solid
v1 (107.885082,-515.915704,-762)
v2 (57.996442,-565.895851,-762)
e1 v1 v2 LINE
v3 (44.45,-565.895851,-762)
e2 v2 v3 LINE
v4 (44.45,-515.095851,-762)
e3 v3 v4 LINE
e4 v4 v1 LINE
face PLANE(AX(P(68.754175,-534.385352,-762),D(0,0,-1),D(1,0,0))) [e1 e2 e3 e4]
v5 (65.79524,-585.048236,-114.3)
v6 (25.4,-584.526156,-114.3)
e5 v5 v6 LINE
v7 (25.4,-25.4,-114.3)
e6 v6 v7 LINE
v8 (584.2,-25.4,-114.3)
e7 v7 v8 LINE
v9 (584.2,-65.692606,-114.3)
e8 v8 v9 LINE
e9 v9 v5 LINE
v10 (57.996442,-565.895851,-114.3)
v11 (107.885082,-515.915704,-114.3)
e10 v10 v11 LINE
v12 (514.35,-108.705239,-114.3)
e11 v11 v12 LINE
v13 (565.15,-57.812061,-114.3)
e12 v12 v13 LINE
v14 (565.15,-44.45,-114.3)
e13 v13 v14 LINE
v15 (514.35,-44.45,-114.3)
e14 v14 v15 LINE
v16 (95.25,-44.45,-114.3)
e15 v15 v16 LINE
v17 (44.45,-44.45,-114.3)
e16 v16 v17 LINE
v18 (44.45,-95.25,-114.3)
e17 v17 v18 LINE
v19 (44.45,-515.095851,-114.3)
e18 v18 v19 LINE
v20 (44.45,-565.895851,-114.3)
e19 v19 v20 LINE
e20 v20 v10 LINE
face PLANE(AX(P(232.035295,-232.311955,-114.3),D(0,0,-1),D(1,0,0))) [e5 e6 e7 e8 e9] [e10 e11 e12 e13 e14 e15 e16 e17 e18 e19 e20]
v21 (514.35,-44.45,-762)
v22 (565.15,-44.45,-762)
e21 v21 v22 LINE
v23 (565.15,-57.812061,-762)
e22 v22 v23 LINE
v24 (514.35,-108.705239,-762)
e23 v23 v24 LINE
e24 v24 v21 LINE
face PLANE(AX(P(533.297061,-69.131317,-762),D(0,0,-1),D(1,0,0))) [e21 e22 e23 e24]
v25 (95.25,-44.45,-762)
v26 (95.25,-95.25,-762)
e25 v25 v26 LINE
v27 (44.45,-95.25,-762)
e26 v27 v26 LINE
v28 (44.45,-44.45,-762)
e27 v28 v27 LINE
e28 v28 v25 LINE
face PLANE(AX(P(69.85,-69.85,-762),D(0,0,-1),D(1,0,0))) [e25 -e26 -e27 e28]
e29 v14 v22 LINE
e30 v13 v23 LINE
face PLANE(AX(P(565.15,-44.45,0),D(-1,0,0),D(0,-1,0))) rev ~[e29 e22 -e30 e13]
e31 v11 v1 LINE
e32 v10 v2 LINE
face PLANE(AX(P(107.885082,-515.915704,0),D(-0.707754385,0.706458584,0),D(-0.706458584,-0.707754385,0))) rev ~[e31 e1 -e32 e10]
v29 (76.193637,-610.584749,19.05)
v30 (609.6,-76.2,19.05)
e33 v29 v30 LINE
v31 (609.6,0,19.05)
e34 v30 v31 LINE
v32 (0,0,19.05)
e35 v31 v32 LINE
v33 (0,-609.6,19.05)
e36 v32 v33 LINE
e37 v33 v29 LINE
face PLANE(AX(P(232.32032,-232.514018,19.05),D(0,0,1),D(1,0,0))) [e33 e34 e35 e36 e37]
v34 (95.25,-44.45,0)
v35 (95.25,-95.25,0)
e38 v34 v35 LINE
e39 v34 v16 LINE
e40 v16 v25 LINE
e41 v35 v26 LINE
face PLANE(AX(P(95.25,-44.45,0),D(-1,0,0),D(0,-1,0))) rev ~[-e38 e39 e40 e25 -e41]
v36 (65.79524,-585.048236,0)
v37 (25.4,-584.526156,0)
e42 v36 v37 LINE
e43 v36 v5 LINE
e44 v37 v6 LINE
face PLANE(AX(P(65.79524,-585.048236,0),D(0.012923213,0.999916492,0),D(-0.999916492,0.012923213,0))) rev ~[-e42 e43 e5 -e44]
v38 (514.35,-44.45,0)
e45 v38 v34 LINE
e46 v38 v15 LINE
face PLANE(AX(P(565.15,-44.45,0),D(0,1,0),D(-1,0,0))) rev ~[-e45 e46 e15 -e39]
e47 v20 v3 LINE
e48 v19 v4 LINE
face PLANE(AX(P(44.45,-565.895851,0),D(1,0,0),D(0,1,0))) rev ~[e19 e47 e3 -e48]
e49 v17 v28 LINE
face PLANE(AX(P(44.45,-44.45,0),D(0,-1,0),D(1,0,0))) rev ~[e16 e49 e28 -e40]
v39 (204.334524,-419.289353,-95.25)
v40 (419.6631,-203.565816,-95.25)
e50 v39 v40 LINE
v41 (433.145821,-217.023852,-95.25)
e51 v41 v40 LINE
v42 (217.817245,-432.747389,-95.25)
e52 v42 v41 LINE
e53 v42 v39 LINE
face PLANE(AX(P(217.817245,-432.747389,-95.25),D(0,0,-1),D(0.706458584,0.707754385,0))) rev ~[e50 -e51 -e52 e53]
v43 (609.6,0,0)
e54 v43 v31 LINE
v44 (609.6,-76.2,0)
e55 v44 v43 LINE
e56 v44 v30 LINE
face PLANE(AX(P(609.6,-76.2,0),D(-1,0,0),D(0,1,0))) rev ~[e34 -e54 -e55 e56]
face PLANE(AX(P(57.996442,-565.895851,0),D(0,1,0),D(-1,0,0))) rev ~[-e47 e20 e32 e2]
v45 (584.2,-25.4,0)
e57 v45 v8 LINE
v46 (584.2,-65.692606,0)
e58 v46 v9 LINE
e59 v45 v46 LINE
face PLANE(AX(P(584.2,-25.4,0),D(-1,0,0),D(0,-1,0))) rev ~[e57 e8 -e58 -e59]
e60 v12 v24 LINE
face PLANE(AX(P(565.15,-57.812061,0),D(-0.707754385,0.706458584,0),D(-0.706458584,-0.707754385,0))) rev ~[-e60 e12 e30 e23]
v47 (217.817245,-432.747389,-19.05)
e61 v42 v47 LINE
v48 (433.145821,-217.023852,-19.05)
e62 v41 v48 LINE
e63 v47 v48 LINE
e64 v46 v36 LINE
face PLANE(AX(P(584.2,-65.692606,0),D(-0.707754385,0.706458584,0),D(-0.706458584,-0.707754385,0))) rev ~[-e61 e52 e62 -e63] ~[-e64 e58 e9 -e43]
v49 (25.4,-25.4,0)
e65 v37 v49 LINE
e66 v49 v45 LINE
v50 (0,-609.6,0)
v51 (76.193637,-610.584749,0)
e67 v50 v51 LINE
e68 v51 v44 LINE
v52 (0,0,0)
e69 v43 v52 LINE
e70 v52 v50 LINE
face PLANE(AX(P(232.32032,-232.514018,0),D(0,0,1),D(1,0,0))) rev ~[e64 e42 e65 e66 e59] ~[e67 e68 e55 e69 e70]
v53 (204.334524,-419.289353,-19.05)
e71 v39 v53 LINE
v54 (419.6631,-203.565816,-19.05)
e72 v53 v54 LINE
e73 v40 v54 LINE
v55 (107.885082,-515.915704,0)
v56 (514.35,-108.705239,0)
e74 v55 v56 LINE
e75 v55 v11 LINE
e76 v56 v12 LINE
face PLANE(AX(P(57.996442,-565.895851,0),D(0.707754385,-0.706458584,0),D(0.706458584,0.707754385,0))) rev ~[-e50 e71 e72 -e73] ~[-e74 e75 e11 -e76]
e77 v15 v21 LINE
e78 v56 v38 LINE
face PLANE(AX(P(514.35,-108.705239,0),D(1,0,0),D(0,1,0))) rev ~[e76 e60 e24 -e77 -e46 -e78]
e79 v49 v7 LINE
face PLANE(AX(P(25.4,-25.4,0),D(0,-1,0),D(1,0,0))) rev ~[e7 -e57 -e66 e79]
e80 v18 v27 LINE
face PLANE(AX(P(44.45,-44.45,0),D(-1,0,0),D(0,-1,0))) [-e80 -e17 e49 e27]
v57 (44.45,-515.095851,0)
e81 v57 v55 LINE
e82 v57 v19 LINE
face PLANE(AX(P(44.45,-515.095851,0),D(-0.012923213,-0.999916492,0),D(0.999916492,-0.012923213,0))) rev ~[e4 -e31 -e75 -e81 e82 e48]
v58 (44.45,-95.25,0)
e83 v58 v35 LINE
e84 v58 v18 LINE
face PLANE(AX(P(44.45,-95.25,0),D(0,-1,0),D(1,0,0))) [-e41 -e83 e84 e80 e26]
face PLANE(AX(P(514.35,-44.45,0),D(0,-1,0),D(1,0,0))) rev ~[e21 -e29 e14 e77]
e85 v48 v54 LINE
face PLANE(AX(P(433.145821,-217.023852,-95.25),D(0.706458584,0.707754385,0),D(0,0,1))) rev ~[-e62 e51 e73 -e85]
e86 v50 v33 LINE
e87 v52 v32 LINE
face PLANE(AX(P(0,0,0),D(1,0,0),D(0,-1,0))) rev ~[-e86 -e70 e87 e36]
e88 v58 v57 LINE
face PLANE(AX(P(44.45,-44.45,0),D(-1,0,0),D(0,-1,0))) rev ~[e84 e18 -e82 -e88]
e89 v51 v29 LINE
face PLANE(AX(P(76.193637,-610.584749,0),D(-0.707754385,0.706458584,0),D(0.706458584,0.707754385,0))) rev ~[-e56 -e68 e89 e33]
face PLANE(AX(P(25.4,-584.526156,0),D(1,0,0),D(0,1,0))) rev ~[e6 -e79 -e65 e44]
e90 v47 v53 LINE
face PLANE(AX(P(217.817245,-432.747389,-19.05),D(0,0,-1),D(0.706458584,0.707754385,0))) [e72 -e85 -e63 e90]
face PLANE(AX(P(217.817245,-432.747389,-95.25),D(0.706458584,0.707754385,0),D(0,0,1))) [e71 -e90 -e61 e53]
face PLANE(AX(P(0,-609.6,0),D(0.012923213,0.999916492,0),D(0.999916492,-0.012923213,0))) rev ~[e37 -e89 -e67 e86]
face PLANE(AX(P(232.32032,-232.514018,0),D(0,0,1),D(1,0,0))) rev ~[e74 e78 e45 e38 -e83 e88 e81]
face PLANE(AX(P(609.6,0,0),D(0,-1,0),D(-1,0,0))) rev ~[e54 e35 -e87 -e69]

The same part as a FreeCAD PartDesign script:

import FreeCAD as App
import Part
import Sketcher
from FreeCAD import Vector
Q = App.Units.Quantity

doc = App.newDocument("Part")
body = doc.addObject("PartDesign::Body", "Body")

# Sketch on XY plane
sketch1 = doc.addObject("Sketcher::SketchObject", "Sketch")
body.addObject(sketch1)
sketch1.AttachmentSupport = (doc.XY_Plane, [""])
sketch1.MapMode = "FlatFace"
sketch1.addGeometry(Part.LineSegment(Vector(609.6, 0, 0), Vector(0, 0, 0)), False)
sketch1.addGeometry(Part.LineSegment(Vector(0, 0, 0), Vector(0, -609.6, 0)), False)
sketch1.addGeometry(Part.LineSegment(Vector(0, -609.6, 0), Vector(76.193637, -610.584749, 0)), False)
sketch1.addGeometry(Part.LineSegment(Vector(76.193637, -610.584749, 0), Vector(609.6, -76.2, 0)), False)
sketch1.addGeometry(Part.LineSegment(Vector(609.6, -76.2, 0), Vector(609.6, 0, 0)), False)
sketch1.addConstraint(Sketcher.Constraint("Coincident", 0, 2, 1, 1))
sketch1.addConstraint(Sketcher.Constraint("Coincident", 1, 2, 2, 1))
sketch1.addConstraint(Sketcher.Constraint("Coincident", 2, 2, 3, 1))
sketch1.addConstraint(Sketcher.Constraint("Coincident", 3, 2, 4, 1))
sketch1.addConstraint(Sketcher.Constraint("Coincident", 4, 2, 0, 1))
sketch1.addConstraint(Sketcher.Constraint("Horizontal", 0))
sketch1.addConstraint(Sketcher.Constraint("Vertical", 1))
sketch1.addConstraint(Sketcher.Constraint("Vertical", 4))
sketch1.addConstraint(Sketcher.Constraint("Coincident", 0, 2, -1, 1))
sketch1.addConstraint(Sketcher.Constraint("Equal", 0, 1))
sketch1.addConstraint(Sketcher.Constraint("DistanceX", 0, 2, 0, 1, Q("24 in")))
sketch1.addConstraint(Sketcher.Constraint("DistanceY", 4, 1, 4, 2, Q("3 in")))
sketch1.addConstraint(Sketcher.Constraint("Distance", 2, Q("3 in")))
sketch1.addConstraint(Sketcher.Constraint("DistanceY", 2, 2, -1, 1, Q("610.584749 mm")))
pad1 = doc.addObject("PartDesign::Pad", "Pad")
body.addObject(pad1)
pad1.Profile = sketch1
pad1.Length = Q("0.75 in")

# Sketch on XY plane
sketch2 = doc.addObject("Sketcher::SketchObject", "Sketch001")
body.addObject(sketch2)
sketch2.AttachmentSupport = (doc.XY_Plane, [""])
sketch2.MapMode = "FlatFace"
sketch2.addGeometry(Part.LineSegment(Vector(584.2, -65.692606, 0), Vector(65.79524, -585.048236, 0)), False)
sketch2.addGeometry(Part.LineSegment(Vector(65.79524, -585.048236, 0), Vector(25.4, -584.526156, 0)), False)
sketch2.addGeometry(Part.LineSegment(Vector(25.4, -584.526156, 0), Vector(25.4, -25.4, 0)), False)
sketch2.addGeometry(Part.LineSegment(Vector(25.4, -25.4, 0), Vector(584.2, -25.4, 0)), False)
sketch2.addGeometry(Part.LineSegment(Vector(584.2, -25.4, 0), Vector(584.2, -65.692606, 0)), False)
sketch2.addGeometry(Part.LineSegment(Vector(565.15, -44.45, 0), Vector(44.45, -44.45, 0)), False)
sketch2.addGeometry(Part.LineSegment(Vector(44.45, -44.45, 0), Vector(44.45, -565.720773, 0)), False)
sketch2.addGeometry(Part.LineSegment(Vector(44.45, -565.720773, 0), Vector(57.996442, -565.895851, 0)), False)
sketch2.addGeometry(Part.LineSegment(Vector(57.996442, -565.895851, 0), Vector(565.15, -57.812061, 0)), False)
sketch2.addGeometry(Part.LineSegment(Vector(565.15, -57.812061, 0), Vector(565.15, -44.45, 0)), False)
sketch2.addConstraint(Sketcher.Constraint("Coincident", 0, 2, 1, 1))
sketch2.addConstraint(Sketcher.Constraint("Coincident", 1, 2, 2, 1))
sketch2.addConstraint(Sketcher.Constraint("Coincident", 2, 2, 3, 1))
sketch2.addConstraint(Sketcher.Constraint("Coincident", 3, 2, 4, 1))
sketch2.addConstraint(Sketcher.Constraint("Coincident", 4, 2, 0, 1))
sketch2.addConstraint(Sketcher.Constraint("Coincident", 5, 2, 6, 1))
sketch2.addConstraint(Sketcher.Constraint("Coincident", 6, 2, 7, 1))
sketch2.addConstraint(Sketcher.Constraint("Coincident", 7, 2, 8, 1))
sketch2.addConstraint(Sketcher.Constraint("Coincident", 8, 2, 9, 1))
sketch2.addConstraint(Sketcher.Constraint("Coincident", 9, 2, 5, 1))
sketch2.addConstraint(Sketcher.Constraint("Vertical", 2))
sketch2.addConstraint(Sketcher.Constraint("Horizontal", 3))
sketch2.addConstraint(Sketcher.Constraint("Vertical", 4))
sketch2.addConstraint(Sketcher.Constraint("Horizontal", 5))
sketch2.addConstraint(Sketcher.Constraint("Vertical", 6))
sketch2.addConstraint(Sketcher.Constraint("Vertical", 9))
sketch2.addConstraint(Sketcher.Constraint("Parallel", 1, 7))
sketch2.addConstraint(Sketcher.Constraint("Parallel", 0, 8))
sketch2.addConstraint(Sketcher.Constraint("DistanceX", 3, 1, 3, 2, Q("22 in")))
sketch2.addConstraint(Sketcher.Constraint("DistanceX", 5, 2, 5, 1, Q("20.5 in")))
sketch2.addConstraint(Sketcher.Constraint("DistanceX", -1, 1, 1, 2, Q("1 in")))
sketch2.addConstraint(Sketcher.Constraint("DistanceY", 2, 2, -1, 1, Q("1 in")))
sketch2.addConstraint(Sketcher.Constraint("DistanceX", -1, 1, 5, 2, Q("1.75 in")))
sketch2.addConstraint(Sketcher.Constraint("DistanceY", 5, 2, -1, 1, Q("1.75 in")))
sketch2.addConstraint(Sketcher.Constraint("DistanceY", 9, 1, 9, 2, Q("13.362061 mm")))
sketch2.addConstraint(Sketcher.Constraint("DistanceY", 2, 1, 2, 2, Q("559.126156 mm")))
sketch2.addConstraint(Sketcher.Constraint("DistanceY", 4, 2, 4, 1, Q("40.292606 mm")))
sketch2.addConstraint(Sketcher.Constraint("DistanceY", 6, 2, 6, 1, Q("521.270773 mm")))
sketch2.addConstraint(Sketcher.Constraint("DistanceX", -1, 1, 0, 2, Q("65.79524 mm")))
sketch2.addConstraint(Sketcher.Constraint("DistanceX", -1, 1, 7, 2, Q("57.996442 mm")))
pad2 = doc.addObject("PartDesign::Pad", "Pad001")
body.addObject(pad2)
pad2.Profile = sketch2
pad2.Length = Q("4.5 in")
pad2.Reversed = True

# Sketch on an angled plane
sketch3 = doc.addObject("Sketcher::SketchObject", "Sketch002")
body.addObject(sketch3)
sketch3.Placement = App.Placement(Vector(325.481533, -324.88562, 0), App.Rotation(Vector(0.706458584, 0.707754385, 0), Vector(0, 0, 1), Vector(0.707754385, -0.706458584, 0), "ZXY"))
sketch3.addGeometry(Part.LineSegment(Vector(-152.4, -19.05, 0), Vector(-152.4, -95.25, 0)), False)
sketch3.addGeometry(Part.LineSegment(Vector(-152.4, -95.25, 0), Vector(152.4, -95.25, 0)), False)
sketch3.addGeometry(Part.LineSegment(Vector(152.4, -95.25, 0), Vector(152.4, -19.05, 0)), False)
sketch3.addGeometry(Part.LineSegment(Vector(152.4, -19.05, 0), Vector(-152.4, -19.05, 0)), False)
sketch3.addConstraint(Sketcher.Constraint("Coincident", 0, 2, 1, 1))
sketch3.addConstraint(Sketcher.Constraint("Coincident", 1, 2, 2, 1))
sketch3.addConstraint(Sketcher.Constraint("Coincident", 2, 2, 3, 1))
sketch3.addConstraint(Sketcher.Constraint("Coincident", 3, 2, 0, 1))
sketch3.addConstraint(Sketcher.Constraint("Vertical", 0))
sketch3.addConstraint(Sketcher.Constraint("Horizontal", 1))
sketch3.addConstraint(Sketcher.Constraint("Vertical", 2))
sketch3.addConstraint(Sketcher.Constraint("Horizontal", 3))
sketch3.addConstraint(Sketcher.Constraint("DistanceX", 1, 1, 1, 2, Q("12 in")))
sketch3.addConstraint(Sketcher.Constraint("DistanceY", 0, 2, 0, 1, Q("3 in")))
sketch3.addConstraint(Sketcher.Constraint("DistanceX", 0, 2, -1, 1, Q("6 in")))
sketch3.addConstraint(Sketcher.Constraint("DistanceY", 0, 2, -1, 1, Q("3.75 in")))
pocket1 = doc.addObject("PartDesign::Pocket", "Pocket")
body.addObject(pocket1)
pocket1.Profile = sketch3
pocket1.Length = 205.103861

# Sketch on XY plane
sketch4 = doc.addObject("Sketcher::SketchObject", "Sketch003")
body.addObject(sketch4)
sketch4.AttachmentSupport = (doc.XY_Plane, [""])
sketch4.MapMode = "FlatFace"
sketch4.addGeometry(Part.LineSegment(Vector(57.996442, -565.895851, 0), Vector(44.45, -565.895851, 0)), False)
sketch4.addGeometry(Part.LineSegment(Vector(44.45, -565.895851, 0), Vector(44.45, -515.095851, 0)), False)
sketch4.addGeometry(Part.LineSegment(Vector(44.45, -515.095851, 0), Vector(107.885082, -515.915704, 0)), False)
sketch4.addGeometry(Part.LineSegment(Vector(107.885082, -515.915704, 0), Vector(57.996442, -565.895851, 0)), False)
sketch4.addConstraint(Sketcher.Constraint("Coincident", 0, 2, 1, 1))
sketch4.addConstraint(Sketcher.Constraint("Coincident", 1, 2, 2, 1))
sketch4.addConstraint(Sketcher.Constraint("Coincident", 2, 2, 3, 1))
sketch4.addConstraint(Sketcher.Constraint("Coincident", 3, 2, 0, 1))
sketch4.addConstraint(Sketcher.Constraint("Horizontal", 0))
sketch4.addConstraint(Sketcher.Constraint("Vertical", 1))
sketch4.addConstraint(Sketcher.Constraint("DistanceY", 1, 1, 1, 2, Q("2 in")))
sketch4.addConstraint(Sketcher.Constraint("DistanceX", -1, 1, 0, 2, Q("1.75 in")))
sketch4.addConstraint(Sketcher.Constraint("DistanceX", 0, 2, 0, 1, Q("13.546442 mm")))
sketch4.addConstraint(Sketcher.Constraint("Distance", 2, Q("63.440379 mm")))
sketch4.addConstraint(Sketcher.Constraint("DistanceY", 0, 2, -1, 1, Q("565.895851 mm")))
sketch4.addConstraint(Sketcher.Constraint("DistanceX", -1, 1, 2, 2, Q("107.885082 mm")))
pad3 = doc.addObject("PartDesign::Pad", "Pad002")
body.addObject(pad3)
pad3.Profile = sketch4
pad3.Length = Q("30 in")
pad3.Reversed = True

# Sketch on XY plane
sketch5 = doc.addObject("Sketcher::SketchObject", "Sketch004")
body.addObject(sketch5)
sketch5.AttachmentSupport = (doc.XY_Plane, [""])
sketch5.MapMode = "FlatFace"
sketch5.addGeometry(Part.LineSegment(Vector(565.15, -44.45, 0), Vector(565.15, -57.812061, 0)), False)
sketch5.addGeometry(Part.LineSegment(Vector(565.15, -57.812061, 0), Vector(514.35, -108.705239, 0)), False)
sketch5.addGeometry(Part.LineSegment(Vector(514.35, -108.705239, 0), Vector(514.35, -44.45, 0)), False)
sketch5.addGeometry(Part.LineSegment(Vector(514.35, -44.45, 0), Vector(565.15, -44.45, 0)), False)
sketch5.addConstraint(Sketcher.Constraint("Coincident", 0, 2, 1, 1))
sketch5.addConstraint(Sketcher.Constraint("Coincident", 1, 2, 2, 1))
sketch5.addConstraint(Sketcher.Constraint("Coincident", 2, 2, 3, 1))
sketch5.addConstraint(Sketcher.Constraint("Coincident", 3, 2, 0, 1))
sketch5.addConstraint(Sketcher.Constraint("Vertical", 0))
sketch5.addConstraint(Sketcher.Constraint("Vertical", 2))
sketch5.addConstraint(Sketcher.Constraint("Horizontal", 3))
sketch5.addConstraint(Sketcher.Constraint("DistanceX", 3, 1, 3, 2, Q("2 in")))
sketch5.addConstraint(Sketcher.Constraint("DistanceX", -1, 1, 0, 2, Q("22.25 in")))
sketch5.addConstraint(Sketcher.Constraint("DistanceY", 2, 2, -1, 1, Q("1.75 in")))
sketch5.addConstraint(Sketcher.Constraint("DistanceY", 0, 2, 0, 1, Q("13.362061 mm")))
sketch5.addConstraint(Sketcher.Constraint("DistanceY", 2, 1, 2, 2, Q("64.255239 mm")))
pad4 = doc.addObject("PartDesign::Pad", "Pad003")
body.addObject(pad4)
pad4.Profile = sketch5
pad4.Length = Q("30 in")
pad4.Reversed = True

# Sketch on XY plane
sketch6 = doc.addObject("Sketcher::SketchObject", "Sketch005")
body.addObject(sketch6)
sketch6.AttachmentSupport = (doc.XY_Plane, [""])
sketch6.MapMode = "FlatFace"
sketch6.addGeometry(Part.LineSegment(Vector(44.45, -95.25, 0), Vector(44.45, -44.45, 0)), False)
sketch6.addGeometry(Part.LineSegment(Vector(44.45, -44.45, 0), Vector(95.25, -44.45, 0)), False)
sketch6.addGeometry(Part.LineSegment(Vector(95.25, -44.45, 0), Vector(95.25, -95.25, 0)), False)
sketch6.addGeometry(Part.LineSegment(Vector(95.25, -95.25, 0), Vector(44.45, -95.25, 0)), False)
sketch6.addConstraint(Sketcher.Constraint("Coincident", 0, 2, 1, 1))
sketch6.addConstraint(Sketcher.Constraint("Coincident", 1, 2, 2, 1))
sketch6.addConstraint(Sketcher.Constraint("Coincident", 2, 2, 3, 1))
sketch6.addConstraint(Sketcher.Constraint("Coincident", 3, 2, 0, 1))
sketch6.addConstraint(Sketcher.Constraint("Vertical", 0))
sketch6.addConstraint(Sketcher.Constraint("Horizontal", 1))
sketch6.addConstraint(Sketcher.Constraint("Vertical", 2))
sketch6.addConstraint(Sketcher.Constraint("Horizontal", 3))
sketch6.addConstraint(Sketcher.Constraint("Equal", 3, 0))
sketch6.addConstraint(Sketcher.Constraint("DistanceX", 1, 1, 1, 2, Q("2 in")))
sketch6.addConstraint(Sketcher.Constraint("DistanceX", -1, 1, 0, 2, Q("1.75 in")))
sketch6.addConstraint(Sketcher.Constraint("DistanceY", 0, 2, -1, 1, Q("1.75 in")))
pad5 = doc.addObject("PartDesign::Pad", "Pad004")
body.addObject(pad5)
pad5.Profile = sketch6
pad5.Length = Q("30 in")
pad5.Reversed = True

doc.recompute()
